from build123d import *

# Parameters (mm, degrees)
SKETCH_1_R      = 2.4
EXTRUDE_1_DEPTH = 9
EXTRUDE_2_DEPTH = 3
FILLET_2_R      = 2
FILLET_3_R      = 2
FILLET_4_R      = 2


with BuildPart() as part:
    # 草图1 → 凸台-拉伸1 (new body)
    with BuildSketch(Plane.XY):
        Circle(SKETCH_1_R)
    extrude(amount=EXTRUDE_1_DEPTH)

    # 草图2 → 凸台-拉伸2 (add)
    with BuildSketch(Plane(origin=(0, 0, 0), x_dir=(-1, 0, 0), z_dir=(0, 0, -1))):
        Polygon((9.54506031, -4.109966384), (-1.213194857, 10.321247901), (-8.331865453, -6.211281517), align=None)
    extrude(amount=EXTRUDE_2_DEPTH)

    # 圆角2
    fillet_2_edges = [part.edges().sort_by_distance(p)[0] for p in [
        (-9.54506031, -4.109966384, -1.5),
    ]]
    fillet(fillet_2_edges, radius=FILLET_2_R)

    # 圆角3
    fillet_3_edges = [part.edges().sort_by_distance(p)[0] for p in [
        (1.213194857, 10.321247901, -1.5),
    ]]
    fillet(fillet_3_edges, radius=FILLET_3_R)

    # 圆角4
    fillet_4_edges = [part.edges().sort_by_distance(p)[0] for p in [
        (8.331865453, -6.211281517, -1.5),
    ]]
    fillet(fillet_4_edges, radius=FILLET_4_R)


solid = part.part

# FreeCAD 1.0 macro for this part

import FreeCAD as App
import Part
import Sketcher


def edges_at(feature, points):
    """Names of the edges that pass closest to the given points."""
    edges = feature.Shape.Edges
    near = lambda p: min(range(len(edges)), key=lambda i: edges[i].distToShape(Part.Vertex(*p))[0])
    return sorted({f"Edge{near(p) + 1}" for p in points})

doc = App.newDocument("Part")
body = doc.addObject("PartDesign::Body", "Body")

# Sketch on XY plane
sketch1 = body.newObject("Sketcher::SketchObject", "Sketch")
sketch1.AttachmentSupport = (doc.getObject("XY_Plane"), [""])
sketch1.MapMode = "FlatFace"
sketch1.addGeometry(Part.Circle(App.Vector(0, 0, 0), App.Vector(0, 0, 1), 2.4), False)
sketch1.addConstraint(Sketcher.Constraint("Coincident", 0, 3, -1, 1))
sketch1.addConstraint(Sketcher.Constraint("Diameter", 0, 4.8))
pad1 = body.newObject("PartDesign::Pad", "Pad")
pad1.Profile = sketch1
pad1.Length = 9

# Sketch on XY plane
sketch2 = body.newObject("Sketcher::SketchObject", "Sketch001")
sketch2.AttachmentSupport = (doc.getObject("XY_Plane"), [""])
sketch2.MapMode = "FlatFace"
sketch2.addGeometry(Part.LineSegment(App.Vector(-10, -4, 0), App.Vector(1, 10, 0)), False)
sketch2.addGeometry(Part.LineSegment(App.Vector(1, 10, 0), App.Vector(8, -6, 0)), False)
sketch2.addGeometry(Part.LineSegment(App.Vector(8, -6, 0), App.Vector(-10, -4, 0)), False)
sketch2.addConstraint(Sketcher.Constraint("Coincident", 0, 2, 1, 1))
sketch2.addConstraint(Sketcher.Constraint("Coincident", 1, 2, 2, 1))
sketch2.addConstraint(Sketcher.Constraint("Coincident", 2, 2, 0, 1))
sketch2.addConstraint(Sketcher.Constraint("Equal", 0, 1))
sketch2.addConstraint(Sketcher.Constraint("Equal", 1, 2))
sketch2.addConstraint(Sketcher.Constraint("Distance", 0, 18.0))
sketch2.addConstraint(Sketcher.Constraint("DistanceY", 1, 2, -1, 1, 6.211282))
sketch2.addConstraint(Sketcher.Constraint("DistanceX", 2, 2, -1, 1, 9.54506))
sketch2.addConstraint(Sketcher.Constraint("DistanceX", 0, 2, 1, 2, 7.118671))
pad2 = body.newObject("PartDesign::Pad", "Pad001")
pad2.Profile = sketch2
pad2.Length = 3
pad2.Reversed = True
doc.recompute()

fillet = body.newObject("PartDesign::Fillet", "Fillet")
fillet.Base = (pad2, edges_at(pad2, [(-9.545, -4.11, -1.5)]))
fillet.Radius = 2
doc.recompute()

fillet2 = body.newObject("PartDesign::Fillet", "Fillet001")
fillet2.Base = (fillet, edges_at(fillet, [(1.213, 10.321, -1.5)]))
fillet2.Radius = 2
doc.recompute()

fillet3 = body.newObject("PartDesign::Fillet", "Fillet002")
fillet3.Base = (fillet2, edges_at(fillet2, [(8.332, -6.211, -1.5)]))
fillet3.Radius = 2

doc.recompute()
